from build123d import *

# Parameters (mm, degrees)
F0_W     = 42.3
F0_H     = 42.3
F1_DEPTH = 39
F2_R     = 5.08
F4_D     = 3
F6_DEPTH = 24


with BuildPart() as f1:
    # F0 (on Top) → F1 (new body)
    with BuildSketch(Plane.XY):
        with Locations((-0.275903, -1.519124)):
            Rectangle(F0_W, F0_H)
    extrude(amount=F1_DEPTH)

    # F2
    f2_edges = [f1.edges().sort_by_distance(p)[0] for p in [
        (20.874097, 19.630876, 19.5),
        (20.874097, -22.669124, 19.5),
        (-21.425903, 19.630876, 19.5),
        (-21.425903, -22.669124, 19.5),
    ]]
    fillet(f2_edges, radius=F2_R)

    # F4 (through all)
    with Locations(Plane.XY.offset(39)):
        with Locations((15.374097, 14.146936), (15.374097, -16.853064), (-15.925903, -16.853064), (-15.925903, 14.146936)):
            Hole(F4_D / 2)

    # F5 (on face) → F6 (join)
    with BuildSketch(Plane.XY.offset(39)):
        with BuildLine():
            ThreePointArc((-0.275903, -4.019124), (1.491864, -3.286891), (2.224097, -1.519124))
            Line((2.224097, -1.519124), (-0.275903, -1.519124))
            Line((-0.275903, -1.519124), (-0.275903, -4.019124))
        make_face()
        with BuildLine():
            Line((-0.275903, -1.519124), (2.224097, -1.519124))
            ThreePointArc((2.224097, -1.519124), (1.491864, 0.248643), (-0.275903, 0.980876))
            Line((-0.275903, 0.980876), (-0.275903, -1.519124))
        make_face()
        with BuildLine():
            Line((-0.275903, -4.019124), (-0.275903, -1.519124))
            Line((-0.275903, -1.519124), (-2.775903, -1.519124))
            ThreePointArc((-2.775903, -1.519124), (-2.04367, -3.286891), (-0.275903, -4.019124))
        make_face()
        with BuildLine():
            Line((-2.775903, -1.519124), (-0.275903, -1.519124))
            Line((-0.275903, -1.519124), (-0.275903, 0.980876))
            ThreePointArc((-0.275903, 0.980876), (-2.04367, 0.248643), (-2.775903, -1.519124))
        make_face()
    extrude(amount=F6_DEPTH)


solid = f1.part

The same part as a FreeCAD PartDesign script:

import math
import FreeCAD as App
import Part
import Sketcher
Q = App.Units.Quantity


def edges_at(feature, points):
    """Names of the edges that pass closest to the given points."""
    edges = feature.Shape.Edges
    near = lambda p: min(range(len(edges)), key=lambda i: edges[i].distToShape(Part.Vertex(*p))[0])
    return sorted({f"Edge{near(p) + 1}" for p in points})


def add_polygon(sketch, points):
    """Adds a closed chain of lines whose ends are joined by coincident constraints."""
    first, n = sketch.GeometryCount, len(points)
    for a, b in zip(points, points[1:] + points[:1]):
        sketch.addGeometry(Part.LineSegment(App.Vector(*a, 0), App.Vector(*b, 0)), False)
    for i in range(n):
        sketch.addConstraint(Sketcher.Constraint("Coincident", first + i, 2, first + (i + 1) % n, 1))

doc = App.newDocument("Part")
params = doc.addObject("Spreadsheet::Sheet", "Params")
for row, (alias, value) in enumerate([
    ("sketch1_width", "42.3 mm"),
    ("pad1_length", "39 mm"),
    ("fillet_radius", "5.08 mm"),
    ("sketch2_diameter", "3 mm"),
    ("hole_diameter", "3 mm"),
    ("sketch3_radius", "2.5 mm"),
    ("pad2_length", "24 mm"),
], start=1):
    params.set(f"A{row}", alias)
    params.set(f"B{row}", "=" + value)
    params.setAlias(f"B{row}", alias)

body = doc.addObject("PartDesign::Body", "Body")

# Sketch on XY plane
sketch1 = doc.addObject("Sketcher::SketchObject", "Sketch")
body.addObject(sketch1)
sketch1.AttachmentSupport = (doc.XY_Plane, [""])
sketch1.MapMode = "FlatFace"
add_polygon(sketch1, [(-21.425903, 19.630876), (-21.425903, -22.669124), (20.874097, -22.669124), (20.874097, 19.630876)])  # lines 0-3
sketch1.addConstraint([
    Sketcher.Constraint("Vertical", 0),
    Sketcher.Constraint("Horizontal", 1),
    Sketcher.Constraint("Vertical", 2),
    Sketcher.Constraint("Horizontal", 3),
    Sketcher.Constraint("Equal", 3, 0),
    Sketcher.Constraint("DistanceX", 1, 1, 1, 2, Q("42.3 mm")),
    Sketcher.Constraint("DistanceX", 0, 2, -1, 1, Q("21.425903 mm")),
    Sketcher.Constraint("DistanceY", 0, 2, -1, 1, Q("22.669124 mm")),
])
sketch1.setExpression("Constraints[9]", "Params.sketch1_width")
pad1 = doc.addObject("PartDesign::Pad", "Pad")
body.addObject(pad1)
pad1.Profile = sketch1
pad1.setExpression("Length", "Params.pad1_length")
doc.recompute()

fillet = doc.addObject("PartDesign::Fillet", "Fillet")
body.addObject(fillet)
fillet.Base = (pad1, edges_at(pad1, [
    (20.874, 19.631, 19.5),
    (20.874, -22.669, 19.5),
    (-21.426, 19.631, 19.5),
    (-21.426, -22.669, 19.5),
]))
fillet.setExpression("Radius", "Params.fillet_radius")

# Sketch on XY plane
sketch2 = doc.addObject("Sketcher::SketchObject", "Sketch001")
body.addObject(sketch2)
sketch2.AttachmentSupport = (doc.XY_Plane, [""])
sketch2.MapMode = "FlatFace"
sketch2.AttachmentOffset = App.Placement(App.Vector(0, 0, 39), App.Rotation())
sketch2.addGeometry([
    Part.Circle(App.Vector(15.374097, 14.146936, 0), App.Vector(0, 0, 1), 1.5),
    Part.Circle(App.Vector(15.374097, -16.853064, 0), App.Vector(0, 0, 1), 1.5),
    Part.Circle(App.Vector(-15.925903, -16.853064, 0), App.Vector(0, 0, 1), 1.5),
    Part.Circle(App.Vector(-15.925903, 14.146936, 0), App.Vector(0, 0, 1), 1.5),
], False)
sketch2.addConstraint([
    Sketcher.Constraint("Equal", 0, 1),
    Sketcher.Constraint("Equal", 1, 2),
    Sketcher.Constraint("Equal", 2, 3),
    Sketcher.Constraint("Horizontal", 1, 3, 2, 3),
    Sketcher.Constraint("Horizontal", 0, 3, 3, 3),
    Sketcher.Constraint("Vertical", 0, 3, 1, 3),
    Sketcher.Constraint("Vertical", 2, 3, 3, 3),
    Sketcher.Constraint("Diameter", 0, Q("3 mm")),
    Sketcher.Constraint("DistanceY", 1, 3, 0, 3, Q("31 mm")),
    Sketcher.Constraint("DistanceX", 2, 3, 1, 3, Q("31.3 mm")),
    Sketcher.Constraint("DistanceX", -1, 1, 0, 3, Q("15.374097 mm")),
    Sketcher.Constraint("DistanceY", -1, 1, 0, 3, Q("14.146936 mm")),
])
sketch2.setExpression("Constraints[7]", "Params.sketch2_diameter")
doc.recompute()
hole = doc.addObject("PartDesign::Hole", "Hole")
body.addObject(hole)
hole.Profile = sketch2
hole.ThreadType = "None"
hole.setExpression("Diameter", "Params.hole_diameter")
hole.DepthType = "ThroughAll"

# Sketch on XY plane
sketch3 = doc.addObject("Sketcher::SketchObject", "Sketch002")
body.addObject(sketch3)
sketch3.AttachmentSupport = (doc.XY_Plane, [""])
sketch3.MapMode = "FlatFace"
sketch3.AttachmentOffset = App.Placement(App.Vector(0, 0, 39), App.Rotation())
sketch3.addGeometry([
    Part.ArcOfCircle(Part.Circle(App.Vector(-0.275903, -1.519124, 0), App.Vector(0, 0, 1), 2.5), math.radians(-90.000004), math.radians(0.000004)),
    Part.ArcOfCircle(Part.Circle(App.Vector(-0.275903, -1.519124, 0), App.Vector(0, 0, 1), 2.5), math.radians(-0.000004), math.radians(90.000004)),
    Part.ArcOfCircle(Part.Circle(App.Vector(-0.275903, -1.519124, 0), App.Vector(0, 0, 1), 2.5), math.radians(89.999996), math.radians(180.000004)),
    Part.ArcOfCircle(Part.Circle(App.Vector(-0.275903, -1.519124, 0), App.Vector(0, 0, 1), 2.5), math.radians(179.999996), math.radians(270.000004)),
], False)
sketch3.addConstraint([
    Sketcher.Constraint("Tangent", 0, 2, 1, 1),
    Sketcher.Constraint("Tangent", 1, 2, 2, 1),
    Sketcher.Constraint("Tangent", 2, 2, 3, 1),
    Sketcher.Constraint("Tangent", 3, 2, 0, 1),
    Sketcher.Constraint("Equal", 0, 1),
    Sketcher.Constraint("Horizontal", 3, 3, 0, 2),
    Sketcher.Constraint("Horizontal", 0, 2, 2, 2),
    Sketcher.Constraint("Vertical", 3, 3, 1, 2),
    Sketcher.Constraint("Vertical", 1, 2, 3, 2),
    Sketcher.Constraint("Radius", 0, Q("2.5 mm")),
    Sketcher.Constraint("DistanceX", 0, 3, -1, 1, Q("0.275903 mm")),
    Sketcher.Constraint("DistanceY", 0, 3, -1, 1, Q("1.519124 mm")),
])
sketch3.setExpression("Constraints[9]", "Params.sketch3_radius")
pad2 = doc.addObject("PartDesign::Pad", "Pad001")
body.addObject(pad2)
pad2.Profile = sketch3
pad2.setExpression("Length", "Params.pad2_length")

doc.recompute()
